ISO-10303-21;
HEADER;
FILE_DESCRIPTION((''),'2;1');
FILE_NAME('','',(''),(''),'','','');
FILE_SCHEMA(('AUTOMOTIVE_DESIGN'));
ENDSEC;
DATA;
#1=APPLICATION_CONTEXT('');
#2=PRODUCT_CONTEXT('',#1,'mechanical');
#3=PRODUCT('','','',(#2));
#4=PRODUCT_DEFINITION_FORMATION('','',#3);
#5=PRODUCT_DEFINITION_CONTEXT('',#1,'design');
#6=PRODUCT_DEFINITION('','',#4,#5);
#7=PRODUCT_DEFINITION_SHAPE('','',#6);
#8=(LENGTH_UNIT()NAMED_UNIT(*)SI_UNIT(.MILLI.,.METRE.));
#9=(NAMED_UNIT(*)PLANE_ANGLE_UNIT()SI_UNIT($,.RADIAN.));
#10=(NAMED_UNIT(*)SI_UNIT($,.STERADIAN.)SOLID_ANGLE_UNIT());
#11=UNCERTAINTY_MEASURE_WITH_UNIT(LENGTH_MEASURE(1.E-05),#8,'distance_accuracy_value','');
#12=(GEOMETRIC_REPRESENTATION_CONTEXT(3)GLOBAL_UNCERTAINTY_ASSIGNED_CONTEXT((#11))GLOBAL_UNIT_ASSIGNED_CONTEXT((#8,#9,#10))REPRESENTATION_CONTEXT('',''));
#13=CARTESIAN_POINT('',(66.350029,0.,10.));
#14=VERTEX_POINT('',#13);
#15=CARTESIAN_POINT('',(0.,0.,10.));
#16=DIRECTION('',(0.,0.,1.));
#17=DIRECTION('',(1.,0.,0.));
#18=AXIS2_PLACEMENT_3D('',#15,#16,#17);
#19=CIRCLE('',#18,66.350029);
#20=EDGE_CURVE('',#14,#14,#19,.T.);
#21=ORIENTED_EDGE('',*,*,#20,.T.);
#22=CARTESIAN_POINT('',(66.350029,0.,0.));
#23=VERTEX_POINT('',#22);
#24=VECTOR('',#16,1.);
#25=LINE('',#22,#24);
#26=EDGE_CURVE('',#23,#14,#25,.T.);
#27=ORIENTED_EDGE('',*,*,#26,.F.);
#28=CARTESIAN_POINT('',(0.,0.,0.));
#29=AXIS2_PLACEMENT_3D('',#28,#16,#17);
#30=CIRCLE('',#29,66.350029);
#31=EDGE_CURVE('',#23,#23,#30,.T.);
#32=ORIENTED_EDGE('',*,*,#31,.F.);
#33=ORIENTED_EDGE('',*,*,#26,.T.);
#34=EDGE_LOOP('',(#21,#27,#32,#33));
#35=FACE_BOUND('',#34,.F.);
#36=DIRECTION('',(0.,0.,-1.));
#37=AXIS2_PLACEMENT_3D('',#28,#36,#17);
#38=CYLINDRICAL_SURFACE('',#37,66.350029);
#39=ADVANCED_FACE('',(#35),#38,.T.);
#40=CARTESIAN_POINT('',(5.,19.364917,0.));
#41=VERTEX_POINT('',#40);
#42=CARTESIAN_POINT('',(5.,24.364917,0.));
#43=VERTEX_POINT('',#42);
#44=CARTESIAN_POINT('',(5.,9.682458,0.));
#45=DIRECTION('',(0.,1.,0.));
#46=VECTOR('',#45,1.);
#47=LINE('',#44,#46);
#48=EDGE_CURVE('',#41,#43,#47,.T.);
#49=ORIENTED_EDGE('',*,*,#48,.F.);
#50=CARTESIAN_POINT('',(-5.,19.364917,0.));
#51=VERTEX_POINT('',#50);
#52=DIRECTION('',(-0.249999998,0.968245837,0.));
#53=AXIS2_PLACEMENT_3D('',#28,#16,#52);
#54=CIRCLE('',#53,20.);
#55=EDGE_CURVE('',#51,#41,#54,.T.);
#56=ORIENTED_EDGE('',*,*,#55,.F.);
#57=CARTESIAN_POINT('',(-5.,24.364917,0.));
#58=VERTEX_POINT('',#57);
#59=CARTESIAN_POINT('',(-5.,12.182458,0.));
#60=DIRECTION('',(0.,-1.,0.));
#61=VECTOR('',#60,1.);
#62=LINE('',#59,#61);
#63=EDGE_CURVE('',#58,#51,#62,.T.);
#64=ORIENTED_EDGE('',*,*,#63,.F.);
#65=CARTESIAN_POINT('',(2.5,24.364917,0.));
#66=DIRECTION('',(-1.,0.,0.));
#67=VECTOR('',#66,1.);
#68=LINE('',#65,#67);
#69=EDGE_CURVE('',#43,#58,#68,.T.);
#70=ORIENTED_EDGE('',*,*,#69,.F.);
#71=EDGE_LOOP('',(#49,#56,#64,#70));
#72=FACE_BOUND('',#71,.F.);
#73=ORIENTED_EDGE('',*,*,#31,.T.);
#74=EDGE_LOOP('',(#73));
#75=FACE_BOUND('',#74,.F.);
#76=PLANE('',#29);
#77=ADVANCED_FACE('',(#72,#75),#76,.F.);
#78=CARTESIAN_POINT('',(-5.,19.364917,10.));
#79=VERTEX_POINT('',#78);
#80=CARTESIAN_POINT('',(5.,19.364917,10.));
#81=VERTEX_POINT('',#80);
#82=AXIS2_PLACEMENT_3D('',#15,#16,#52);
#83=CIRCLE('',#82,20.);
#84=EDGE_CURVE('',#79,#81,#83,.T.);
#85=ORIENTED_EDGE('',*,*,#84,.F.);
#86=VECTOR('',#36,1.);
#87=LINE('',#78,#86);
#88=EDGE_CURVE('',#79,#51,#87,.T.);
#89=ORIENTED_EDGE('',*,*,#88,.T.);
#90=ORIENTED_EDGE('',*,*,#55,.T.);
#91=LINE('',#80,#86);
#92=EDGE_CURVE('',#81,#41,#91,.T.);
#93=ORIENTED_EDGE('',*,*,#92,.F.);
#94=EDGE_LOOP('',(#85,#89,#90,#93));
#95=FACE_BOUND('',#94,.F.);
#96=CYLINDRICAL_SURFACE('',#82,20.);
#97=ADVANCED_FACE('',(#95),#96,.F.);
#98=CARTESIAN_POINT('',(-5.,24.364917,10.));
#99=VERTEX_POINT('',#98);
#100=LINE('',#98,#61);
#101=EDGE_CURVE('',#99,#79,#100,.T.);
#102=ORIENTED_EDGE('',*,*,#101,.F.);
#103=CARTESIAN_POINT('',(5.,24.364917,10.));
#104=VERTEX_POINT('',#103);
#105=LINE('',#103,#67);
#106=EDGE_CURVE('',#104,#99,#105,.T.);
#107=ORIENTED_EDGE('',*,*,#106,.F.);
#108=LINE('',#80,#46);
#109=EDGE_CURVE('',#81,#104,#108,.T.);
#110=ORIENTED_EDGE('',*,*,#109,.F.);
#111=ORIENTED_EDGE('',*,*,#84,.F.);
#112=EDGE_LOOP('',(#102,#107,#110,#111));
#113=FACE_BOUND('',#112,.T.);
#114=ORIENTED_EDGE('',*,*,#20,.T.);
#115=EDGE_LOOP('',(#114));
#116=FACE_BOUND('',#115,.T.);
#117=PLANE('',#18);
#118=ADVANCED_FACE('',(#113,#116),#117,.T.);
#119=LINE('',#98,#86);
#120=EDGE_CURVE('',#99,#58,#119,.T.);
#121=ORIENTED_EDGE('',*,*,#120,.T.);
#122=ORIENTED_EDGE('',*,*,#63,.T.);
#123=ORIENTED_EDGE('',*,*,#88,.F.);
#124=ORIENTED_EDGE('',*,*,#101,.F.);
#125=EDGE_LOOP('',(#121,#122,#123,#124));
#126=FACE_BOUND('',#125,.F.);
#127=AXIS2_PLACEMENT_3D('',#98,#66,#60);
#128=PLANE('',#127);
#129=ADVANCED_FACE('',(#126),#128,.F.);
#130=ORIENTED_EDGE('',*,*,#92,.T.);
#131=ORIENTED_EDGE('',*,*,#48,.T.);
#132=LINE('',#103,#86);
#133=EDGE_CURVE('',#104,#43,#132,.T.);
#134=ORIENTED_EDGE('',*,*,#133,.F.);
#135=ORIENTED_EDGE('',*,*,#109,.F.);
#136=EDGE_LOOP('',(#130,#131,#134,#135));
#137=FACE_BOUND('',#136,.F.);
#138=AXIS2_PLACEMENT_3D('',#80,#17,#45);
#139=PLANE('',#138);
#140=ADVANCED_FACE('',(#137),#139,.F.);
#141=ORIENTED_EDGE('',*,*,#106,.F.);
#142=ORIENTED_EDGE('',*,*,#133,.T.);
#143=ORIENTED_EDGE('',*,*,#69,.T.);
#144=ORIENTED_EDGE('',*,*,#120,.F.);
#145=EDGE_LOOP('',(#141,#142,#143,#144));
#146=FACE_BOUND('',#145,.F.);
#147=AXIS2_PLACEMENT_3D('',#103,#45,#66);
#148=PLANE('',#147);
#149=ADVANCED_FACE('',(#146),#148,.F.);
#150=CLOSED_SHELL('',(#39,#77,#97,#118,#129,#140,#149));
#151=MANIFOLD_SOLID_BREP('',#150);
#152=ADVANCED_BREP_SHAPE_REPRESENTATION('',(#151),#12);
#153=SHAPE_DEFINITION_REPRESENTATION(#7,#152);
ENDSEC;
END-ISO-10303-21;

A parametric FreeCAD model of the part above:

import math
import FreeCAD as App
import Part
import Sketcher
from FreeCAD import Vector
Q = App.Units.Quantity

doc = App.newDocument("Part")
params = doc.addObject("Spreadsheet::Sheet", "Params")
for row, (alias, value) in enumerate([
    ("pad1_length", "10 mm"),
    ("sketch2_radius", "20 mm"),
    ("sketch2_width", "10 mm"),
    ("sketch2_height", "5 mm"),
], start=1):
    params.set(f"A{row}", alias)
    params.set(f"B{row}", "=" + value)
    params.setAlias(f"B{row}", alias)

body = doc.addObject("PartDesign::Body", "Body")

sketch1 = doc.addObject("Sketcher::SketchObject", "Sketch")
body.addObject(sketch1)
sketch1.AttachmentSupport = (doc.XY_Plane, [""])
sketch1.MapMode = "FlatFace"
sketch1.addGeometry(Part.Circle(Vector(0, 0, 0), Vector(0, 0, 1), 66), False)
sketch1.addConstraint(Sketcher.Constraint("Coincident", 0, 3, -1, 1))
sketch1.addConstraint(Sketcher.Constraint("Diameter", 0, Q("132.700058 mm")))
pad1 = doc.addObject("PartDesign::Pad", "Pad")
body.addObject(pad1)
pad1.Profile = sketch1
pad1.setExpression("Length", "Params.pad1_length")

sketch2 = doc.addObject("Sketcher::SketchObject", "Sketch001")
body.addObject(sketch2)
sketch2.AttachmentSupport = (doc.XY_Plane, [""])
sketch2.MapMode = "FlatFace"
sketch2.AttachmentOffset = App.Placement(Vector(0, 0, 10), App.Rotation())
sketch2.addGeometry(Part.ArcOfCircle(Part.Circle(Vector(0, 0, 0), Vector(0, 0, 1), 20), math.radians(104), math.radians(436)), False)
sketch2.addGeometry(Part.LineSegment(Vector(5, 19, 0), Vector(5, 24, 0)), False)
sketch2.addGeometry(Part.LineSegment(Vector(5, 24, 0), Vector(-5, 24, 0)), False)
sketch2.addGeometry(Part.LineSegment(Vector(-5, 24, 0), Vector(-5, 19, 0)), False)
sketch2.addConstraint(Sketcher.Constraint("Coincident", 0, 2, 1, 1))
sketch2.addConstraint(Sketcher.Constraint("Coincident", 1, 2, 2, 1))
sketch2.addConstraint(Sketcher.Constraint("Coincident", 2, 2, 3, 1))
sketch2.addConstraint(Sketcher.Constraint("Coincident", 3, 2, 0, 1))
sketch2.addConstraint(Sketcher.Constraint("Vertical", 1))
sketch2.addConstraint(Sketcher.Constraint("Horizontal", 2))
sketch2.addConstraint(Sketcher.Constraint("Vertical", 3))
sketch2.addConstraint(Sketcher.Constraint("Coincident", 0, 3, -1, 1))
sketch2.addConstraint(Sketcher.Constraint("Horizontal", 0, 2, 3, 2))
sketch2.addConstraint(Sketcher.Constraint("Radius", 0, Q("20 mm")))
sketch2.addConstraint(Sketcher.Constraint("DistanceX", 2, 2, 2, 1, Q("10 mm")))
sketch2.addConstraint(Sketcher.Constraint("DistanceY", 1, 1, 1, 2, Q("5 mm")))
sketch2.setExpression("Constraints[9]", "Params.sketch2_radius")
sketch2.setExpression("Constraints[10]", "Params.sketch2_width")
sketch2.setExpression("Constraints[11]", "Params.sketch2_height")
pocket1 = doc.addObject("PartDesign::Pocket", "Pocket")
body.addObject(pocket1)
pocket1.Profile = sketch2
pocket1.Type = "ThroughAll"

doc.recompute()
